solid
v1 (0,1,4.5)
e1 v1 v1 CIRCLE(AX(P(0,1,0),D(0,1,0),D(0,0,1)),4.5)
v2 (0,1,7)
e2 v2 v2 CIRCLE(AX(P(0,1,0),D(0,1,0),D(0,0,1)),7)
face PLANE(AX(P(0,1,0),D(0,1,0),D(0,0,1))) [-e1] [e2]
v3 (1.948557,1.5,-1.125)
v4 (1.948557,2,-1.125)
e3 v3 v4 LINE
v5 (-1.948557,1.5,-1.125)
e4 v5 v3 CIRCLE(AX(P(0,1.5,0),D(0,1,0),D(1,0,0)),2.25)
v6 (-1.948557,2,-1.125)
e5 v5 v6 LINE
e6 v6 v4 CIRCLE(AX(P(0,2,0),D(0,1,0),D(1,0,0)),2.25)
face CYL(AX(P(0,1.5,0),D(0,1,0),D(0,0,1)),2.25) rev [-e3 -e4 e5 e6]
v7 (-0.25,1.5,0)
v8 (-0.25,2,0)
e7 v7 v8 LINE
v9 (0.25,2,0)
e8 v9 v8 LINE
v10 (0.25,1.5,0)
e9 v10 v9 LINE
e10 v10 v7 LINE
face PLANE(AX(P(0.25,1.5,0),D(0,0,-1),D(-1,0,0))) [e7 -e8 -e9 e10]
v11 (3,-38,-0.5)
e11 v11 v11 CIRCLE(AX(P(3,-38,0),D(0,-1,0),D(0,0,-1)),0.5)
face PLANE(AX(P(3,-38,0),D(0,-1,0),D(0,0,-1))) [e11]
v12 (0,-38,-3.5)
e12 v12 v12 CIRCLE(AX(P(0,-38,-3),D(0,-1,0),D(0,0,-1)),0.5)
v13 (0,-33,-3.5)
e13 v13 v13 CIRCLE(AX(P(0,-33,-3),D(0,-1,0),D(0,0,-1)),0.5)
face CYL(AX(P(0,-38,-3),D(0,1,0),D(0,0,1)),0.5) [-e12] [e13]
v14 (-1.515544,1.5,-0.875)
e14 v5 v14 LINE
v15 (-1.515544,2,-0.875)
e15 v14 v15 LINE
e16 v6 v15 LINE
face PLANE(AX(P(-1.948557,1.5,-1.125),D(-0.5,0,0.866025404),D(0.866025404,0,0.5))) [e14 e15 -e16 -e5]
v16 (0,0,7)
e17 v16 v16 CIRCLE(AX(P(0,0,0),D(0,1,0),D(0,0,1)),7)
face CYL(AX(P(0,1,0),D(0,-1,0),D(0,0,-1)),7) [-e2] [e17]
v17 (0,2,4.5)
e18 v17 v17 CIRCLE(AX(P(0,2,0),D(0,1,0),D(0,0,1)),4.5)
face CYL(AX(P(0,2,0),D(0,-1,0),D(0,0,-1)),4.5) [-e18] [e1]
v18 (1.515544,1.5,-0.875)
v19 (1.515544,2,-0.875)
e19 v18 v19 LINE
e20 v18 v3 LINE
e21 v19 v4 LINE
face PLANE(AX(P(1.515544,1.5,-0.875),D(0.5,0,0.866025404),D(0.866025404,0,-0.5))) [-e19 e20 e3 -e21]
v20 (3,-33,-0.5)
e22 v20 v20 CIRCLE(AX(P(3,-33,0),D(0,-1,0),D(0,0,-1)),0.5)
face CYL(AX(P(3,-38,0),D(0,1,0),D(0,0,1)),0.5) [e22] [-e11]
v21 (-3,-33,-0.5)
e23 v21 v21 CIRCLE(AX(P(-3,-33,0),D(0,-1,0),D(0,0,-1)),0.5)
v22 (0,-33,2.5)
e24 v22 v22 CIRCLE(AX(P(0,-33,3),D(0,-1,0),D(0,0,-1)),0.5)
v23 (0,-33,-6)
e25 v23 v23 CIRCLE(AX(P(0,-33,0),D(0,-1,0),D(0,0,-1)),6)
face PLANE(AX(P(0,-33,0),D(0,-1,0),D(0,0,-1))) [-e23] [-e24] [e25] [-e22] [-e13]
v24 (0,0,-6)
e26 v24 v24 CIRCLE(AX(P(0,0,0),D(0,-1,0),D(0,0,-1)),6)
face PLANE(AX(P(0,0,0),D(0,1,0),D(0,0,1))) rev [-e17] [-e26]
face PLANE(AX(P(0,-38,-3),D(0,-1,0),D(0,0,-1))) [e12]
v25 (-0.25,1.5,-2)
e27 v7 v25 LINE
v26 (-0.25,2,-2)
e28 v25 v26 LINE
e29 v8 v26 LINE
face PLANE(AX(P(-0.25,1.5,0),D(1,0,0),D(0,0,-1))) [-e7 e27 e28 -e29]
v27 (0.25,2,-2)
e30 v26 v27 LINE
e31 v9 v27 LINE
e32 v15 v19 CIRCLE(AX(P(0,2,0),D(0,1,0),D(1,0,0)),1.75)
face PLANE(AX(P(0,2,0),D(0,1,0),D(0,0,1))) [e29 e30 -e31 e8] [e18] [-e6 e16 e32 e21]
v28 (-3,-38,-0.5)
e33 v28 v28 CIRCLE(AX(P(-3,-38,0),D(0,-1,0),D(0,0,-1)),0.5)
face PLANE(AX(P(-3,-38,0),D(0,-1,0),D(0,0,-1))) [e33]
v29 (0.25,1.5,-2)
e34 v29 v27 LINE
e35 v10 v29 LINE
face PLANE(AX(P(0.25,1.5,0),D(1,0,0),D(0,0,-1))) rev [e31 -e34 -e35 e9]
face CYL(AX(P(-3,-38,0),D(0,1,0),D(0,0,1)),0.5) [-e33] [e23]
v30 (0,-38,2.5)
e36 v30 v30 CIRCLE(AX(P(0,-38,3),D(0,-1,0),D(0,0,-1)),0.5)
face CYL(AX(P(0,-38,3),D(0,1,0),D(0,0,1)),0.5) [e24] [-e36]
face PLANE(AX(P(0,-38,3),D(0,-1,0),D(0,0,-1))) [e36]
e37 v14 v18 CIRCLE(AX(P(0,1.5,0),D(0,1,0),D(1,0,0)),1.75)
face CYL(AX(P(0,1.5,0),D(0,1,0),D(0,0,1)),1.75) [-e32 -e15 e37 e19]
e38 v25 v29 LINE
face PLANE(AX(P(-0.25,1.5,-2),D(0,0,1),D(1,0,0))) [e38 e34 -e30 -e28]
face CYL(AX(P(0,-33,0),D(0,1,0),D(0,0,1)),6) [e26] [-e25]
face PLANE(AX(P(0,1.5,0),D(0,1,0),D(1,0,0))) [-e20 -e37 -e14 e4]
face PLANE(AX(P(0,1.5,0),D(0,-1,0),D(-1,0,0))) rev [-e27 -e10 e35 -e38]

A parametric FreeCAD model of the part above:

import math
import FreeCAD as App
import Part
import Sketcher
Q = App.Units.Quantity

doc = App.newDocument("Part")
body = doc.addObject("PartDesign::Body", "Body")

sketch1 = doc.addObject("Sketcher::SketchObject", "Sketch")
body.addObject(sketch1)
sketch1.AttachmentSupport = (doc.XZ_Plane, [""])
sketch1.MapMode = "FlatFace"
sketch1.addGeometry(Part.Circle(App.Vector(0, 0, 0), App.Vector(0, 0, 1), 7), False)
sketch1.addConstraint(Sketcher.Constraint("Coincident", 0, 3, -1, 1))
sketch1.addConstraint(Sketcher.Constraint("Diameter", 0, Q("14 mm")))
pad1 = doc.addObject("PartDesign::Pad", "Pad")
body.addObject(pad1)
pad1.Profile = sketch1
pad1.Length = 1
pad1.Reversed = True

sketch2 = doc.addObject("Sketcher::SketchObject", "Sketch001")
body.addObject(sketch2)
sketch2.AttachmentSupport = (doc.XZ_Plane, [""])
sketch2.MapMode = "FlatFace"
sketch2.AttachmentOffset = App.Placement(App.Vector(0, 0, -1), App.Rotation())
sketch2.addGeometry(Part.Circle(App.Vector(0, 0, 0), App.Vector(0, 0, 1), 4.5), False)
sketch2.addConstraint(Sketcher.Constraint("Coincident", 0, 3, -1, 1))
sketch2.addConstraint(Sketcher.Constraint("Diameter", 0, Q("9 mm")))
pad2 = doc.addObject("PartDesign::Pad", "Pad001")
body.addObject(pad2)
pad2.Profile = sketch2
pad2.Length = 1
pad2.Reversed = True

sketch3 = doc.addObject("Sketcher::SketchObject", "Sketch002")
body.addObject(sketch3)
sketch3.AttachmentSupport = (doc.XZ_Plane, [""])
sketch3.MapMode = "FlatFace"
sketch3.AttachmentOffset = App.Placement(App.Vector(0, 0, -2), App.Rotation())
sketch3.addGeometry(Part.LineSegment(App.Vector(-0.2, -2, 0), App.Vector(-0.2, 0, 0)), False)
sketch3.addGeometry(Part.LineSegment(App.Vector(-0.2, 0, 0), App.Vector(0.2, 0, 0)), False)
sketch3.addGeometry(Part.LineSegment(App.Vector(0.2, 0, 0), App.Vector(0.2, -2, 0)), False)
sketch3.addGeometry(Part.LineSegment(App.Vector(0.2, -2, 0), App.Vector(-0.2, -2, 0)), False)
sketch3.addGeometry(Part.ArcOfCircle(Part.Circle(App.Vector(0, 0, 0), App.Vector(0, 0, 1), 2.2), math.radians(-30), math.radians(210)), False)
sketch3.addGeometry(Part.LineSegment(App.Vector(1.9, -1.1, 0), App.Vector(1.5, -0.9, 0)), False)
sketch3.addGeometry(Part.ArcOfCircle(Part.Circle(App.Vector(0, 0, 0), App.Vector(0, 0, 1), 1.8), math.radians(-30), math.radians(210)), False)
sketch3.addGeometry(Part.LineSegment(App.Vector(-1.5, -0.9, 0), App.Vector(-1.9, -1.1, 0)), False)
sketch3.addConstraint(Sketcher.Constraint("Coincident", 0, 2, 1, 1))
sketch3.addConstraint(Sketcher.Constraint("Coincident", 1, 2, 2, 1))
sketch3.addConstraint(Sketcher.Constraint("Coincident", 2, 2, 3, 1))
sketch3.addConstraint(Sketcher.Constraint("Coincident", 3, 2, 0, 1))
sketch3.addConstraint(Sketcher.Constraint("Coincident", 4, 1, 5, 1))
sketch3.addConstraint(Sketcher.Constraint("Coincident", 5, 2, 6, 1))
sketch3.addConstraint(Sketcher.Constraint("Coincident", 6, 2, 7, 1))
sketch3.addConstraint(Sketcher.Constraint("Coincident", 7, 2, 4, 2))
sketch3.addConstraint(Sketcher.Constraint("Vertical", 0))
sketch3.addConstraint(Sketcher.Constraint("Horizontal", 1))
sketch3.addConstraint(Sketcher.Constraint("Vertical", 2))
sketch3.addConstraint(Sketcher.Constraint("Horizontal", 3))
sketch3.addConstraint(Sketcher.Constraint("Coincident", 4, 3, -1, 1))
sketch3.addConstraint(Sketcher.Constraint("Coincident", 6, 3, -1, 1))
sketch3.addConstraint(Sketcher.Constraint("Symmetric", 0, 2, 1, 2, -1, 1))
sketch3.addConstraint(Sketcher.Constraint("Horizontal", 5, 2, 6, 2))
sketch3.addConstraint(Sketcher.Constraint("Horizontal", 4, 1, 7, 2))
sketch3.addConstraint(Sketcher.Constraint("DistanceY", 0, 1, 0, 2, Q("2 mm")))
sketch3.addConstraint(Sketcher.Constraint("Angle", 5, Q("150 deg")))
sketch3.addConstraint(Sketcher.Constraint("Radius", 4, Q("2.25 mm")))
sketch3.addConstraint(Sketcher.Constraint("Radius", 6, Q("1.75 mm")))
sketch3.addConstraint(Sketcher.Constraint("DistanceX", 1, 1, 1, 2, Q("0.5 mm")))
sketch3.addConstraint(Sketcher.Constraint("DistanceY", 4, 1, -1, 1, Q("1.125 mm")))
pocket1 = doc.addObject("PartDesign::Pocket", "Pocket")
body.addObject(pocket1)
pocket1.Profile = sketch3
pocket1.Length = 0.5
pocket1.Reversed = True

sketch4 = doc.addObject("Sketcher::SketchObject", "Sketch003")
body.addObject(sketch4)
sketch4.AttachmentSupport = (doc.XZ_Plane, [""])
sketch4.MapMode = "FlatFace"
sketch4.addGeometry(Part.Circle(App.Vector(0, 0, 0), App.Vector(0, 0, 1), 6), False)
sketch4.addConstraint(Sketcher.Constraint("Coincident", 0, 3, -1, 1))
sketch4.addConstraint(Sketcher.Constraint("Diameter", 0, Q("12 mm")))
pad3 = doc.addObject("PartDesign::Pad", "Pad002")
body.addObject(pad3)
pad3.Profile = sketch4
pad3.Length = 33

sketch5 = doc.addObject("Sketcher::SketchObject", "Sketch004")
body.addObject(sketch5)
sketch5.AttachmentSupport = (doc.XZ_Plane, [""])
sketch5.MapMode = "FlatFace"
sketch5.AttachmentOffset = App.Placement(App.Vector(0, 0, 33), App.Rotation())
sketch5.addGeometry(Part.Circle(App.Vector(0, 3, 0), App.Vector(0, 0, 1), 0.5), False)
sketch5.addGeometry(Part.Circle(App.Vector(3, 0, 0), App.Vector(0, 0, 1), 0.5), False)
sketch5.addGeometry(Part.Circle(App.Vector(0, -3, 0), App.Vector(0, 0, 1), 0.5), False)
sketch5.addGeometry(Part.Circle(App.Vector(-3, 0, 0), App.Vector(0, 0, 1), 0.5), False)
sketch5.addConstraint(Sketcher.Constraint("Equal", 0, 1))
sketch5.addConstraint(Sketcher.Constraint("Equal", 1, 2))
sketch5.addConstraint(Sketcher.Constraint("Equal", 2, 3))
sketch5.addConstraint(Sketcher.Constraint("Symmetric", 0, 3, 2, 3, -1, 1))
sketch5.addConstraint(Sketcher.Constraint("Symmetric", 1, 3, 3, 3, -1, 1))
sketch5.addConstraint(Sketcher.Constraint("PointOnObject", 0, 3, -2))
sketch5.addConstraint(Sketcher.Constraint("PointOnObject", 1, 3, -1))
sketch5.addConstraint(Sketcher.Constraint("Diameter", 0, Q("1 mm")))
sketch5.addConstraint(Sketcher.Constraint("DistanceY", -1, 1, 0, 3, Q("3 mm")))
sketch5.addConstraint(Sketcher.Constraint("DistanceX", -1, 1, 1, 3, Q("3 mm")))
pad4 = doc.addObject("PartDesign::Pad", "Pad003")
body.addObject(pad4)
pad4.Profile = sketch5
pad4.Length = 5

doc.recompute()
